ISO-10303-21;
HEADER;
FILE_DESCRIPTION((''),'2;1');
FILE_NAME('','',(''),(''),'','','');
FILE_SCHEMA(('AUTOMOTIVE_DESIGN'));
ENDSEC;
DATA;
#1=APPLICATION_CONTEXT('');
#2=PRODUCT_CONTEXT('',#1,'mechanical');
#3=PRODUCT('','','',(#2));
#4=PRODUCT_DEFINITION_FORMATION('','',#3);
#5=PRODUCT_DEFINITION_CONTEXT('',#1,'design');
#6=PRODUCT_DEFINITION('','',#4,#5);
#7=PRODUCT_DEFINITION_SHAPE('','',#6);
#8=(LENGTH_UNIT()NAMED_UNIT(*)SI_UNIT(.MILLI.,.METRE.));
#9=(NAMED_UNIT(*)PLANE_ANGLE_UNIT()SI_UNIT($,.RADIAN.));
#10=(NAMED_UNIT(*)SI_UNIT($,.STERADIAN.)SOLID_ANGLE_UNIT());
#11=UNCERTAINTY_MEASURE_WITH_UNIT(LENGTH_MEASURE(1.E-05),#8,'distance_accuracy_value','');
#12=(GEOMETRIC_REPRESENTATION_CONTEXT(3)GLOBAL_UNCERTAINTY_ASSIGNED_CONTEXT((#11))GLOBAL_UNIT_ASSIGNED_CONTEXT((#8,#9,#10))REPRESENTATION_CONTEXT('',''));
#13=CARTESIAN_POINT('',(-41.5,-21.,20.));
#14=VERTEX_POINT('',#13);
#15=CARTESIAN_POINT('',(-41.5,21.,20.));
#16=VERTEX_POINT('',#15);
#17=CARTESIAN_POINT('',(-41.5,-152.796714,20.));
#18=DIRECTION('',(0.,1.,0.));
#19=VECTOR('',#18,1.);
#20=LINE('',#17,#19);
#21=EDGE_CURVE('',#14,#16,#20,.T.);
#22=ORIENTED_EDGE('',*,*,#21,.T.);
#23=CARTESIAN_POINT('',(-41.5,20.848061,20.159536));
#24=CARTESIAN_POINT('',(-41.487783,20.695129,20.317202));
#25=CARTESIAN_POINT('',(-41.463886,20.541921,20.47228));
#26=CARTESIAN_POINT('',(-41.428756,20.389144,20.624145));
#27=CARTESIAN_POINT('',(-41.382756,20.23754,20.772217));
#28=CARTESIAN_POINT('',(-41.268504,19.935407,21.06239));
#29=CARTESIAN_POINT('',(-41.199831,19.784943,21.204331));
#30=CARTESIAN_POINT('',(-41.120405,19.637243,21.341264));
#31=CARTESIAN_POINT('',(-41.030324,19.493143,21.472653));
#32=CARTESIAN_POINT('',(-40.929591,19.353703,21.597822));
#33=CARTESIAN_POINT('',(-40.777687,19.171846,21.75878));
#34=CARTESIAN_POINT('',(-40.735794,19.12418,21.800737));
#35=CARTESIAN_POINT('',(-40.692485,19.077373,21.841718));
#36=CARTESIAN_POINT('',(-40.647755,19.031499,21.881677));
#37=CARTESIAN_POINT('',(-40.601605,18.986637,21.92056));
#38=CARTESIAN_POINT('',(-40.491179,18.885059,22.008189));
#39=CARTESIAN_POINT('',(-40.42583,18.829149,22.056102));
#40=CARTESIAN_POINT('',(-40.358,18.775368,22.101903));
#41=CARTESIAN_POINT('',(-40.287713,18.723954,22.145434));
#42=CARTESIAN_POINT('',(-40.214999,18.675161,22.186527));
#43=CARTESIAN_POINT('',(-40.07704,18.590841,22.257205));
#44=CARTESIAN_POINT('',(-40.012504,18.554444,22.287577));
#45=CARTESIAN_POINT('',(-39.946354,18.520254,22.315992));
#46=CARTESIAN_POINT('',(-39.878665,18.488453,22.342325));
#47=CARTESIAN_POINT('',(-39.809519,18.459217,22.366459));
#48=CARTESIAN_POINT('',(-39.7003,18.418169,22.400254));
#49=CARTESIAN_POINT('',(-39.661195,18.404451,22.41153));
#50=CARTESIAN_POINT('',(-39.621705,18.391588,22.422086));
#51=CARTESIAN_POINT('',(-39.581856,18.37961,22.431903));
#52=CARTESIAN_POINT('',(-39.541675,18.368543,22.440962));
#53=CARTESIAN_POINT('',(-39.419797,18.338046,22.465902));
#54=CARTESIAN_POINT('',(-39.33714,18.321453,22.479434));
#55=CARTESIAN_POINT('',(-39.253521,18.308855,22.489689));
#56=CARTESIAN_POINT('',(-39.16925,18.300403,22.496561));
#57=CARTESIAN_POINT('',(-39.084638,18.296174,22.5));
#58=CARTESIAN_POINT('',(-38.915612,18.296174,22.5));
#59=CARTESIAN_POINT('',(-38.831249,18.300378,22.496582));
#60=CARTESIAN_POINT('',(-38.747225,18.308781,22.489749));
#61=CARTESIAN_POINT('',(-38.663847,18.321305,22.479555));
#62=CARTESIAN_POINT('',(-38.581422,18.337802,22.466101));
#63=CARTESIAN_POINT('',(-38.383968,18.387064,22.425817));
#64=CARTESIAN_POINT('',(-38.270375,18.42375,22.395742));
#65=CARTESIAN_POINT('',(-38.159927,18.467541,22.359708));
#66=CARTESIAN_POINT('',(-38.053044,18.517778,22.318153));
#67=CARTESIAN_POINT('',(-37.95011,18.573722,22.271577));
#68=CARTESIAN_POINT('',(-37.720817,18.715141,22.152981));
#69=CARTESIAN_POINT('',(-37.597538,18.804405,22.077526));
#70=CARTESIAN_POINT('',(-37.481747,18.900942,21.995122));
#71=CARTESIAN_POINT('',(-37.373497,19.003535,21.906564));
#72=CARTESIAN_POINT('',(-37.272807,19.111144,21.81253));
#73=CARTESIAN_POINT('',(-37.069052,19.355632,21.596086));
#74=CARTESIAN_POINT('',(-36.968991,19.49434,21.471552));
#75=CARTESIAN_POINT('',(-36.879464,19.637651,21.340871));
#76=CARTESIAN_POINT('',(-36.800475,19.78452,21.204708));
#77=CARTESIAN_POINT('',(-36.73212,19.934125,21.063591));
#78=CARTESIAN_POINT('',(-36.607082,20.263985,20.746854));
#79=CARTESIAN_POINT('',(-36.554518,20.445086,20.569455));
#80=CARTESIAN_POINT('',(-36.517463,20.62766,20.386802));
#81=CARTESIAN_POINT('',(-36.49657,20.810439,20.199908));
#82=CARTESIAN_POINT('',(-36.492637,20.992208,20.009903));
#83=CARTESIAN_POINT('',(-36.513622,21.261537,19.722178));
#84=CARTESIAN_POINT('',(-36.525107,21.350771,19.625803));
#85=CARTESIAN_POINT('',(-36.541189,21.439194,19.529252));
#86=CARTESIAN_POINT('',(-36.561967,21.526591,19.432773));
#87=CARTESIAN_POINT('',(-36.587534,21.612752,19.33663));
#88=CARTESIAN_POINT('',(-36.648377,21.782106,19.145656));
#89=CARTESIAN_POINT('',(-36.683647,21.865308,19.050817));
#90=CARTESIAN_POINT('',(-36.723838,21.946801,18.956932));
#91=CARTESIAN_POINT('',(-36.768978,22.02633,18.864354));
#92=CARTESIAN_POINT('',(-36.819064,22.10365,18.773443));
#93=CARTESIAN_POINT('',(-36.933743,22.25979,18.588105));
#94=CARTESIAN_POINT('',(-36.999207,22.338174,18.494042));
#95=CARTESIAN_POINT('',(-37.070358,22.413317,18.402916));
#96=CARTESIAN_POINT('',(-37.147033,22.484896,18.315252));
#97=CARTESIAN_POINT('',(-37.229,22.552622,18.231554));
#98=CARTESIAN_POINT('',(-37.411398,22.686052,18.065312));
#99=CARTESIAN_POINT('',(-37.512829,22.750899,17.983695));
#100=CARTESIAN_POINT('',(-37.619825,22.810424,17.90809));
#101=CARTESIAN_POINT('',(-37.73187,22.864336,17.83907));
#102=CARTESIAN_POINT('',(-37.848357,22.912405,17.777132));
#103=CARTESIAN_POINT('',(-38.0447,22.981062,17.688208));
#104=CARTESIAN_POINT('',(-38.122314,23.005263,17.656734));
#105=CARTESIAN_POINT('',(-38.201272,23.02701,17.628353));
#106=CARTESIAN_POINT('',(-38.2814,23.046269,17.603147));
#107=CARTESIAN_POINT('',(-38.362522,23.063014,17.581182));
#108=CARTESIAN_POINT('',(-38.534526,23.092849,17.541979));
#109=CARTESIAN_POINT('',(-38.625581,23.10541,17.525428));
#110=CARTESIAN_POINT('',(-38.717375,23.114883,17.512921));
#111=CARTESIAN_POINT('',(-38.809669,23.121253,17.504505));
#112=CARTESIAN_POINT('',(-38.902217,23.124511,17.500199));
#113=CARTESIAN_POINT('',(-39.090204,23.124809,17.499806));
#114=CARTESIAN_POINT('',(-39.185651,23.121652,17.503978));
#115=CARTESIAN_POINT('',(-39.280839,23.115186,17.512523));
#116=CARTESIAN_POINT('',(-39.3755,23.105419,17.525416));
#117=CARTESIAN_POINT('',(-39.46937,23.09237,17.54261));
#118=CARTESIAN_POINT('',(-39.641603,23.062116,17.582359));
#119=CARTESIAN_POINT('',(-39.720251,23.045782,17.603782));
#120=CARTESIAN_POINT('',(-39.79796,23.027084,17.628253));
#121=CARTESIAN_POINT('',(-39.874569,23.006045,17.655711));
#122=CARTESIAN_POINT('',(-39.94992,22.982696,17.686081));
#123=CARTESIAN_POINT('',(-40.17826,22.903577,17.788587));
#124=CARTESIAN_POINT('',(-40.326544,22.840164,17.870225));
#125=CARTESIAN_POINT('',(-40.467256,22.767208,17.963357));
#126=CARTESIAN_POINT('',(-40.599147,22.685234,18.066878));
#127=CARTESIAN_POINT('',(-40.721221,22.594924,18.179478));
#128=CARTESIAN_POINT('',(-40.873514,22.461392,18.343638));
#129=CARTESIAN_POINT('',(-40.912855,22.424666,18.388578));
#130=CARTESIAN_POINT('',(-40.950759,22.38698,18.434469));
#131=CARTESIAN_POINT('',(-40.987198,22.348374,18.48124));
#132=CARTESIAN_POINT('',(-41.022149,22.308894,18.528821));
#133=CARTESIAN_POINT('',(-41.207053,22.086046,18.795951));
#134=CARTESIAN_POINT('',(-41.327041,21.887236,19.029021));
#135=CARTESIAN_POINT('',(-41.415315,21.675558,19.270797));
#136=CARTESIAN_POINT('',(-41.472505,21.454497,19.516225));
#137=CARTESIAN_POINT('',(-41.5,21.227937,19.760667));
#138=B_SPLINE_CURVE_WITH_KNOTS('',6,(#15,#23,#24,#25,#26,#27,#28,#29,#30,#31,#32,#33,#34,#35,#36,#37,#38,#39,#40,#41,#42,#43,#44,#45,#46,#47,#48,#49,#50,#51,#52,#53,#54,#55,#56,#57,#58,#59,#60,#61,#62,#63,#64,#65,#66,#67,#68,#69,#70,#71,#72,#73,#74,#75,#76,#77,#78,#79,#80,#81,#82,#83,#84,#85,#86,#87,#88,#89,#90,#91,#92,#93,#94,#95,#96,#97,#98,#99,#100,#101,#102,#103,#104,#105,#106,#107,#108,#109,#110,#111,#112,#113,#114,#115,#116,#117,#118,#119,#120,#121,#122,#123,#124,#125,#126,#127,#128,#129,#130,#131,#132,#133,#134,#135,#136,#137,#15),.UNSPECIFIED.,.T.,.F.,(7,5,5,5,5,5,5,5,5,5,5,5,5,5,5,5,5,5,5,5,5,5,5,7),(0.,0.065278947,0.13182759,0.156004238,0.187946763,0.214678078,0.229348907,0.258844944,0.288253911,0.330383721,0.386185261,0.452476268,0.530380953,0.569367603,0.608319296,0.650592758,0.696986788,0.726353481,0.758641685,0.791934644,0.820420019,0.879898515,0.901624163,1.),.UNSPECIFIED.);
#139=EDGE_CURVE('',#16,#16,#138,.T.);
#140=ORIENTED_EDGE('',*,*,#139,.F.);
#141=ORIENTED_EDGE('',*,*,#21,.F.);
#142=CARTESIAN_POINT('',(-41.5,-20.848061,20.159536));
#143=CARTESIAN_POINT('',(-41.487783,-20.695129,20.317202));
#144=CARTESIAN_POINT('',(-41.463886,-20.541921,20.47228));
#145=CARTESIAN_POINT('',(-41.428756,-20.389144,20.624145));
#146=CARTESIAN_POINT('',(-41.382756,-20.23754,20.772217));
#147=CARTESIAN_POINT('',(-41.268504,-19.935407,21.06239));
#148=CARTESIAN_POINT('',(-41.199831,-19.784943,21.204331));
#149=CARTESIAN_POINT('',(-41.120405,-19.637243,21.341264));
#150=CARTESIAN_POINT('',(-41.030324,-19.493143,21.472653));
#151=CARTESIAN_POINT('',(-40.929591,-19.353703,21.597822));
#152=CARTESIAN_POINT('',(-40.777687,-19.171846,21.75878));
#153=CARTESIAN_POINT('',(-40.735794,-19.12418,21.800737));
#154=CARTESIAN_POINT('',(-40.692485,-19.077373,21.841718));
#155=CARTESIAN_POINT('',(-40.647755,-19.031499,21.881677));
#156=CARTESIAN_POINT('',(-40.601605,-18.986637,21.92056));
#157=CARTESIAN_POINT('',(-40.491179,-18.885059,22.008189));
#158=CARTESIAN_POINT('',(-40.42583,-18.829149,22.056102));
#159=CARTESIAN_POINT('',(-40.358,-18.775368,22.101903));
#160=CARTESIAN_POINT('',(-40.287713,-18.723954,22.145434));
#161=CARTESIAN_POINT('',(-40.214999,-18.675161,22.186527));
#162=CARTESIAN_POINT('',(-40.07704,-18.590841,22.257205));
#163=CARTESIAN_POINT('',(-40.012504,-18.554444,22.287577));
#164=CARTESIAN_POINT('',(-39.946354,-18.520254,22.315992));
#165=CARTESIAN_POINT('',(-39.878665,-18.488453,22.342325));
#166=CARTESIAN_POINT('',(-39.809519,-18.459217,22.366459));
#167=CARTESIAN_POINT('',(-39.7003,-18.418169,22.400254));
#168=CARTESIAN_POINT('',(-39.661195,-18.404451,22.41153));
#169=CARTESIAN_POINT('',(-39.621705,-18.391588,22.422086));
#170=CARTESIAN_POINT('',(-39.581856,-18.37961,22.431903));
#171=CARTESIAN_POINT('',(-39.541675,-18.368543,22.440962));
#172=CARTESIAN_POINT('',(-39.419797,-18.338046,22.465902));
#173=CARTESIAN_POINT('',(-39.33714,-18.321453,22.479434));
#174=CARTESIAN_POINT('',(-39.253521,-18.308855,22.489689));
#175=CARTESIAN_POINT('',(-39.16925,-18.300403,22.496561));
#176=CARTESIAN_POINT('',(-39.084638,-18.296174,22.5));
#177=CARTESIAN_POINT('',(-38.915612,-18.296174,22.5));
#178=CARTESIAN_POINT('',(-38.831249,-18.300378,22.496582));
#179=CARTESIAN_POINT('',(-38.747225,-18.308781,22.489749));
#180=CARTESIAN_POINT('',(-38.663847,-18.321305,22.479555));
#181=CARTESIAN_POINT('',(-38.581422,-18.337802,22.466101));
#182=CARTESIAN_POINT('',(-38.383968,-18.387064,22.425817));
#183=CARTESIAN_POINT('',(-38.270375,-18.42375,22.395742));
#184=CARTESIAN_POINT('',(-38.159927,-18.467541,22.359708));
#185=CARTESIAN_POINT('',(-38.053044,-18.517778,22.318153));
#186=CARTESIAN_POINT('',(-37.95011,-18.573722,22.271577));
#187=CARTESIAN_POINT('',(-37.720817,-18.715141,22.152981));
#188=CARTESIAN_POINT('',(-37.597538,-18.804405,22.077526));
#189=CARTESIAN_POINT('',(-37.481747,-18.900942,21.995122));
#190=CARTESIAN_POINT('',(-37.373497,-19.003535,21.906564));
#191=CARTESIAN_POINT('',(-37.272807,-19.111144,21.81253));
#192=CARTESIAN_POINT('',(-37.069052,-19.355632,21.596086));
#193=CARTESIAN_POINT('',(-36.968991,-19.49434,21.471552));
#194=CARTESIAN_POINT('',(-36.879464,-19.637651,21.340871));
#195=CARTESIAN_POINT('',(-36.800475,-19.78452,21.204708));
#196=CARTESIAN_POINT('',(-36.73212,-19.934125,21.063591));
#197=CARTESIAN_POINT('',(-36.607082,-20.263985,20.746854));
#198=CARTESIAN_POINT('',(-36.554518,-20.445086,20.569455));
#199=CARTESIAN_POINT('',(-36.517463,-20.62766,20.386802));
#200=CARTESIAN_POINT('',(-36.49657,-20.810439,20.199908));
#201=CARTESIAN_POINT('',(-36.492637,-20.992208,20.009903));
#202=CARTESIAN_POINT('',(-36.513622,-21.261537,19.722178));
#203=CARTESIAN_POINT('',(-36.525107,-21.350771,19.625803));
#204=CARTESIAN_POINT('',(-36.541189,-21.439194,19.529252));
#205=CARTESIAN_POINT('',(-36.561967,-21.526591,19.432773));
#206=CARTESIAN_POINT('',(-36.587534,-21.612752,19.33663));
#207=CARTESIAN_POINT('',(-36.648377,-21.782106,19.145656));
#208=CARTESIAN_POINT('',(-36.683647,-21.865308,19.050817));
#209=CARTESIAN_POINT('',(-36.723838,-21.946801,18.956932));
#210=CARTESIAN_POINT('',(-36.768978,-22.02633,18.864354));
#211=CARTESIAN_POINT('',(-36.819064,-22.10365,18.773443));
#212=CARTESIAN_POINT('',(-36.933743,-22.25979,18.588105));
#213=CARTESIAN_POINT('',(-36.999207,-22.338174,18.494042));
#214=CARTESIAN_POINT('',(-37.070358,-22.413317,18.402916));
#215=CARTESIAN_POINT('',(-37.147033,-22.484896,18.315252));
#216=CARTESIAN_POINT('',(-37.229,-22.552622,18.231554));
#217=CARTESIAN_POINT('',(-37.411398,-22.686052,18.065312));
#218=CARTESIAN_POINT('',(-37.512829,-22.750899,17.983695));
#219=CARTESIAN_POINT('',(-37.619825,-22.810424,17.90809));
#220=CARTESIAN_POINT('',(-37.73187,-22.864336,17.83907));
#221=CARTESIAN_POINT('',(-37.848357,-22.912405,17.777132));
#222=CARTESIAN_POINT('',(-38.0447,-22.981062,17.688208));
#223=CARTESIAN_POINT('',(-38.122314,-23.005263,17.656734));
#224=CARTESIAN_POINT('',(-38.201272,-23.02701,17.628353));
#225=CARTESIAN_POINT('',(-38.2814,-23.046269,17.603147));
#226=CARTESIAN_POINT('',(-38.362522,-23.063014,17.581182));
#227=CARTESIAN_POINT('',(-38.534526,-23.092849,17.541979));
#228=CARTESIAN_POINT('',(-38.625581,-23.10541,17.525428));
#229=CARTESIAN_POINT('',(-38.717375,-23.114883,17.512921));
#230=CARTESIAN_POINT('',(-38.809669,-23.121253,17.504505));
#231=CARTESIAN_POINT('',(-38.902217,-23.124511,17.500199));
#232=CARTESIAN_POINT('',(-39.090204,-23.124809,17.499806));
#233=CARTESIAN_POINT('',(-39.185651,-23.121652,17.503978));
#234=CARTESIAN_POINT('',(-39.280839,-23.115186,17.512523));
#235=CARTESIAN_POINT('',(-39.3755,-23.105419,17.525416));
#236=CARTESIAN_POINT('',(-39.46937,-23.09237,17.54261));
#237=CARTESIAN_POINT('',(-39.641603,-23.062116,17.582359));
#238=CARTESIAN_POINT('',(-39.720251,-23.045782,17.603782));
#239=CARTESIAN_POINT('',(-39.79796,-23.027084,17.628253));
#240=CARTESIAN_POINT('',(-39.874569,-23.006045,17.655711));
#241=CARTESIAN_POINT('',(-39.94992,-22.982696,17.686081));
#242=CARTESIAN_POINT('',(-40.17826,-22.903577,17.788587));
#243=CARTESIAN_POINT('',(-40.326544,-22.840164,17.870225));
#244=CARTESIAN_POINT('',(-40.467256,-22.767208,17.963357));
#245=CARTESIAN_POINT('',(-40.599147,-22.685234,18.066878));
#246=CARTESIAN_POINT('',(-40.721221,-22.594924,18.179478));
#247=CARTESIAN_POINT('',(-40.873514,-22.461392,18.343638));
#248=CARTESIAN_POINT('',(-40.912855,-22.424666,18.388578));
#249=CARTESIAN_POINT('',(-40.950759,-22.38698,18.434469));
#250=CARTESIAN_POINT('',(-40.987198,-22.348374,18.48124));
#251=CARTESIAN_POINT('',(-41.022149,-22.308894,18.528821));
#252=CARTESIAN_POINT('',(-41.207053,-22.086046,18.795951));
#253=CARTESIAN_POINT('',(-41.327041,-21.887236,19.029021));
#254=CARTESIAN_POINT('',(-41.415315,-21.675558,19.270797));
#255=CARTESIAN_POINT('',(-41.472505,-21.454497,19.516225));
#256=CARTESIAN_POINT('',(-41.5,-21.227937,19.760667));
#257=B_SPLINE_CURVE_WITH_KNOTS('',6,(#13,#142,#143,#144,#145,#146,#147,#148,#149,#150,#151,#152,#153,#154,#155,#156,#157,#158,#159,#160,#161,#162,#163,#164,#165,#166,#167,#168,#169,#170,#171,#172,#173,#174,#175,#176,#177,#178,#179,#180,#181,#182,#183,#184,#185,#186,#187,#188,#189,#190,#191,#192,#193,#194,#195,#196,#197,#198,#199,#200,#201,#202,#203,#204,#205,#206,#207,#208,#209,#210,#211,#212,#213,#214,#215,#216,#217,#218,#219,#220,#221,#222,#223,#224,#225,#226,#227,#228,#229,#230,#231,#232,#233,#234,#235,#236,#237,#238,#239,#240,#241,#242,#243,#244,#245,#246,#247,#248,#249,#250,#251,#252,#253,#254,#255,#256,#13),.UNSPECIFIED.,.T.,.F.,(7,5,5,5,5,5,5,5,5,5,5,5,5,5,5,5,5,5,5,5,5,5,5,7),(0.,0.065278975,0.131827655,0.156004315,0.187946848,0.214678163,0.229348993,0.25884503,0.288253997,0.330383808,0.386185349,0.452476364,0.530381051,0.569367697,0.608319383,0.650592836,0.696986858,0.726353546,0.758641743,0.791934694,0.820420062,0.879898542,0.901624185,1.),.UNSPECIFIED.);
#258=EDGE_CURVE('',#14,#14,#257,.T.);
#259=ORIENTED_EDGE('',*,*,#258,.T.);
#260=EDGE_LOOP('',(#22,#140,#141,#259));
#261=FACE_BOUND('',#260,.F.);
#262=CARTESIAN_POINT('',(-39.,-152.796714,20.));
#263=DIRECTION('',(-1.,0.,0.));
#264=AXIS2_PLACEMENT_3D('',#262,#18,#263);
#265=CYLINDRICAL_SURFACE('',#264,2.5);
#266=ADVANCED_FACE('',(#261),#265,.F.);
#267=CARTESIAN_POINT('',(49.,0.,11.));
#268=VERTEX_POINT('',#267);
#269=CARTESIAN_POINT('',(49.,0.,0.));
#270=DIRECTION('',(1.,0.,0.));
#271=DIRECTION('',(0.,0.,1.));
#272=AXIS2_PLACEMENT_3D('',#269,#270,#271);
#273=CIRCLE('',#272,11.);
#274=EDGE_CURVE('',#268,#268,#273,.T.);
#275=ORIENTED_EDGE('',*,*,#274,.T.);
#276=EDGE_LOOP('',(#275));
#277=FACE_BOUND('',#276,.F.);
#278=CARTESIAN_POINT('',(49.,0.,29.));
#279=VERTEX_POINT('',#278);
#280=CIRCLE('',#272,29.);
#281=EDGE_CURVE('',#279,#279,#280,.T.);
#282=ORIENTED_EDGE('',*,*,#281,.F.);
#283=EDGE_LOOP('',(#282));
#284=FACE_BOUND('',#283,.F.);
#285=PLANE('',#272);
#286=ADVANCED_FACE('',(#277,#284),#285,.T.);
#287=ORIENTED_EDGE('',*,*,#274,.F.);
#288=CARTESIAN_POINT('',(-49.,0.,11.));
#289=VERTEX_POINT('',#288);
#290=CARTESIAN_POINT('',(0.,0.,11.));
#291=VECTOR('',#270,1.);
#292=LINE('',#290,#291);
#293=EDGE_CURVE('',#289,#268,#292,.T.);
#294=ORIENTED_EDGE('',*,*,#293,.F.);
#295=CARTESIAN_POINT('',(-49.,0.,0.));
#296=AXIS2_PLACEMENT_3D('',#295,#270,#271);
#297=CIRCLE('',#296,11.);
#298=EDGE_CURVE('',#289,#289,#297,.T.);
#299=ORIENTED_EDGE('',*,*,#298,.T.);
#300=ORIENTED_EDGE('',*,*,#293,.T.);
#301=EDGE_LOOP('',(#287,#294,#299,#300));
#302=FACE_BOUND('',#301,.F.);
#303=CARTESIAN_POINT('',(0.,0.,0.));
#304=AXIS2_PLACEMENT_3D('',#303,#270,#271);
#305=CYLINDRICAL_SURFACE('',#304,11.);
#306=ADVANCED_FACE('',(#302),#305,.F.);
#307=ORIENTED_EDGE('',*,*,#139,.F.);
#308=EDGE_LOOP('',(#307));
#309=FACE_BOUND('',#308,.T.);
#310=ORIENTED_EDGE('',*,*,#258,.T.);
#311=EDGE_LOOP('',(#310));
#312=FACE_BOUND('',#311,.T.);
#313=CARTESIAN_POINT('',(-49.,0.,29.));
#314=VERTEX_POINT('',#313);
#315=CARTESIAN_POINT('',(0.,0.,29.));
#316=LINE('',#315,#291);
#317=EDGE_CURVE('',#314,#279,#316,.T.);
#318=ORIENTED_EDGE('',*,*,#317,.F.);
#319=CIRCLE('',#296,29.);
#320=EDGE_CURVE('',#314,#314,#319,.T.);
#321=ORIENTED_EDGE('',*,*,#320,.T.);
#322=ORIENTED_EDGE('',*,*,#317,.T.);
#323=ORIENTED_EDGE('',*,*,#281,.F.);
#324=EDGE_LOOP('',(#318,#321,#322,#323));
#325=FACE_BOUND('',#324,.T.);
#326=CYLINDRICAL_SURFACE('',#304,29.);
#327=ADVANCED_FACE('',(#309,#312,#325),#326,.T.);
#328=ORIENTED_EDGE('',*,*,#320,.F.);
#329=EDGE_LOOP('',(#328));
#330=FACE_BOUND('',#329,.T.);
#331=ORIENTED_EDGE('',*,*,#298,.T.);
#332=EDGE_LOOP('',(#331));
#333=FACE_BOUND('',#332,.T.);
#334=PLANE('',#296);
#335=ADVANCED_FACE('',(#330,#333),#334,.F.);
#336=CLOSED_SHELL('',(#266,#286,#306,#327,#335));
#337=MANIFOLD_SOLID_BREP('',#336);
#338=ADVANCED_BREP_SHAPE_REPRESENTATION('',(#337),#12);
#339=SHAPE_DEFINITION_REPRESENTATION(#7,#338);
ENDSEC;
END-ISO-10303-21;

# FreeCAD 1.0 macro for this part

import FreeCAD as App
import Part
import Sketcher

V = App.Vector
Q = App.Units.Quantity


def add_polygon(sketch, points):
    """Adds a closed chain of lines whose ends are joined by coincident constraints."""
    first, n = sketch.GeometryCount, len(points)
    for a, b in zip(points, points[1:] + points[:1]):
        sketch.addGeometry(Part.LineSegment(App.Vector(*a, 0), App.Vector(*b, 0)), False)
    for i in range(n):
        sketch.addConstraint(Sketcher.Constraint("Coincident", first + i, 2, first + (i + 1) % n, 1))

doc = App.newDocument("Part")
params = doc.addObject("Spreadsheet::Sheet", "Params")
for row, (alias, value) in enumerate([
    ("sketch1_width", "98 mm"),
    ("sketch1_height", "18 mm"),
    ("revolution_angle", "360 deg"),
    ("sketch2_diameter", "5 mm"),
    ("hole_diameter", "5 mm"),
], start=1):
    params.set(f"A{row}", alias)
    params.set(f"B{row}", "=" + value)
    params.setAlias(f"B{row}", alias)

body = doc.addObject("PartDesign::Body", "Body")

# Sketch on XZ plane
sketch1 = body.newObject("Sketcher::SketchObject", "Sketch")
sketch1.AttachmentSupport = (doc.getObject("XZ_Plane"), [""])
sketch1.MapMode = "FlatFace"
add_polygon(sketch1, [(-49, 29), (-49, 11), (49, 11), (49, 29)])  # lines 0-3
sketch1.addConstraint(Sketcher.Constraint("Vertical", 0))
sketch1.addConstraint(Sketcher.Constraint("Horizontal", 1))
sketch1.addConstraint(Sketcher.Constraint("Vertical", 2))
sketch1.addConstraint(Sketcher.Constraint("Horizontal", 3))
sketch1.addConstraint(Sketcher.Constraint("DistanceX", 1, 1, 1, 2, Q("98 mm")))
sketch1.addConstraint(Sketcher.Constraint("DistanceY", 0, 2, 0, 1, Q("18 mm")))
sketch1.addConstraint(Sketcher.Constraint("DistanceX", 0, 2, -1, 1, Q("49 mm")))
sketch1.addConstraint(Sketcher.Constraint("DistanceY", -1, 1, 0, 2, Q("11 mm")))
sketch1.setExpression("Constraints[8]", "Params.sketch1_width")
sketch1.setExpression("Constraints[9]", "Params.sketch1_height")
revolution = body.newObject("PartDesign::Revolution", "Revolution")
revolution.Profile = sketch1
revolution.ReferenceAxis = (sketch1, ["H_Axis"])
revolution.setExpression("Angle", "Params.revolution_angle")

# Sketch on XZ plane
sketch2 = body.newObject("Sketcher::SketchObject", "Sketch001")
sketch2.AttachmentSupport = (doc.getObject("XZ_Plane"), [""])
sketch2.MapMode = "FlatFace"
sketch2.AttachmentOffset = App.Placement(V(0, 0, 25), App.Rotation())
sketch2.addGeometry(Part.Circle(V(-39, 20, 0), V(0, 0, 1), 2.5), False)
sketch2.addConstraint(Sketcher.Constraint("Diameter", 0, Q("5 mm")))
sketch2.addConstraint(Sketcher.Constraint("DistanceX", 0, 3, -1, 1, Q("39 mm")))
sketch2.addConstraint(Sketcher.Constraint("DistanceY", -1, 1, 0, 3, Q("20 mm")))
sketch2.setExpression("Constraints[0]", "Params.sketch2_diameter")
doc.recompute()
hole = body.newObject("PartDesign::Hole", "Hole")
hole.Profile = sketch2
hole.ThreadType = "None"
hole.setExpression("Diameter", "Params.hole_diameter")
hole.DepthType = "ThroughAll"

doc.recompute()
